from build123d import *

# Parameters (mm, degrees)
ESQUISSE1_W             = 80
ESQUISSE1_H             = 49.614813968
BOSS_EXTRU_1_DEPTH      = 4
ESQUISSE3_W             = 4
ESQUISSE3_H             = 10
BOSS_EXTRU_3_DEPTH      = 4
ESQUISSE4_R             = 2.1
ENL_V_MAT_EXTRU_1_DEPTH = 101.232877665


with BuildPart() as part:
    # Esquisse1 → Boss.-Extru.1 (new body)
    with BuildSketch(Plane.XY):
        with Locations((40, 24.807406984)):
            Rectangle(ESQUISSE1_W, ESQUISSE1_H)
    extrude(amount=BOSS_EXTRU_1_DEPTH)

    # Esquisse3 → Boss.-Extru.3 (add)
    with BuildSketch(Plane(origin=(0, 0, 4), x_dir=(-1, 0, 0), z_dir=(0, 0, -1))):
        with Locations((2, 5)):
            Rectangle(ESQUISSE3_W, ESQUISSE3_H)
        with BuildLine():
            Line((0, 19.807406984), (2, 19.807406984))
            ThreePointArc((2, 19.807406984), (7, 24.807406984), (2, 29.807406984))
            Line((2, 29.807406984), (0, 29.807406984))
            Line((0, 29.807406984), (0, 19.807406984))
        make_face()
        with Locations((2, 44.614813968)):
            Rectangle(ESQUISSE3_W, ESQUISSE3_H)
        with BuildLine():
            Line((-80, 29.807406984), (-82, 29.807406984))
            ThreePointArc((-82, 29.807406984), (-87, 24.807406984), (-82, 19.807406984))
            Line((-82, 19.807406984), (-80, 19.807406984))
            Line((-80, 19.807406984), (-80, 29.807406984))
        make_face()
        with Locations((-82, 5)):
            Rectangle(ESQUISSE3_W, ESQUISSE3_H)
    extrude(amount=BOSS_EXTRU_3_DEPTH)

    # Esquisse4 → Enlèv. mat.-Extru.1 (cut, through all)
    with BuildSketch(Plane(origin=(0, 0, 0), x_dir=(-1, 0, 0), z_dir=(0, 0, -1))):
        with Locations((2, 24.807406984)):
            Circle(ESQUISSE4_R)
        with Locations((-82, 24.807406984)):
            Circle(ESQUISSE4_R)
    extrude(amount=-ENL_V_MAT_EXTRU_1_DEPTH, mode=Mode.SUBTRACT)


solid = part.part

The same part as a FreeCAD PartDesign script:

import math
import FreeCAD as App
import Part
import Sketcher

V = App.Vector

doc = App.newDocument("Part")
params = doc.addObject("Spreadsheet::Sheet", "Params")
for row, (alias, value) in enumerate([
    ("sketch1_width", "80 mm"),
    ("pad1_length", "4 mm"),
    ("sketch2_radius", "5 mm"),
    ("sketch2_width", "4 mm"),
    ("sketch2_width2", "2 mm"),
    ("pad2_length", "4 mm"),
    ("sketch3_diameter", "4.2 mm"),
], start=1):
    params.set(f"A{row}", alias)
    params.set(f"B{row}", "=" + value)
    params.setAlias(f"B{row}", alias)

body = doc.addObject("PartDesign::Body", "Body")

sketch1 = body.newObject("Sketcher::SketchObject", "Sketch")
sketch1.AttachmentSupport = (doc.getObject("XY_Plane"), [""])
sketch1.MapMode = "FlatFace"
sketch1.addGeometry([
    Part.LineSegment(V(0, 49.614814, 0), V(0, 0, 0)),
    Part.LineSegment(V(0, 0, 0), V(80, 0, 0)),
    Part.LineSegment(V(80, 0, 0), V(80, 49.614814, 0)),
    Part.LineSegment(V(80, 49.614814, 0), V(0, 49.614814, 0)),
], False)
sketch1.addConstraint([
    Sketcher.Constraint("Coincident", 0, 2, 1, 1),
    Sketcher.Constraint("Coincident", 1, 2, 2, 1),
    Sketcher.Constraint("Coincident", 2, 2, 3, 1),
    Sketcher.Constraint("Coincident", 3, 2, 0, 1),
    Sketcher.Constraint("Vertical", 0),
    Sketcher.Constraint("Horizontal", 1),
    Sketcher.Constraint("Vertical", 2),
    Sketcher.Constraint("Horizontal", 3),
    Sketcher.Constraint("Coincident", 0, 2, -1, 1),
    Sketcher.Constraint("DistanceX", 1, 1, 1, 2, 80.0),
    Sketcher.Constraint("DistanceY", 0, 2, 0, 1, 49.614814),
])
sketch1.setExpression("Constraints[9]", "Params.sketch1_width")
pad1 = body.newObject("PartDesign::Pad", "Pad")
pad1.Profile = sketch1
pad1.setExpression("Length", "Params.pad1_length")

sketch2 = body.newObject("Sketcher::SketchObject", "Sketch001")
sketch2.AttachmentSupport = (doc.getObject("XY_Plane"), [""])
sketch2.MapMode = "FlatFace"
sketch2.AttachmentOffset = App.Placement(V(0, 0, 4), App.Rotation())
sketch2.addGeometry([
    Part.LineSegment(V(0, 10, 0), V(0, 0, 0)),
    Part.LineSegment(V(0, 0, 0), V(-4, 0, 0)),
    Part.LineSegment(V(-4, 0, 0), V(-4, 10, 0)),
    Part.LineSegment(V(-4, 10, 0), V(0, 10, 0)),
    Part.LineSegment(V(0, 19.807407, 0), V(-2, 19.807407, 0)),
    Part.ArcOfCircle(Part.Circle(V(-2, 24.807407, 0), V(0, 0, 1), 5), math.radians(90), math.radians(270)),
    Part.LineSegment(V(-2, 29.807407, 0), V(0, 29.807407, 0)),
    Part.LineSegment(V(0, 29.807407, 0), V(0, 19.807407, 0)),
    Part.LineSegment(V(0, 49.614814, 0), V(0, 39.614814, 0)),
    Part.LineSegment(V(0, 39.614814, 0), V(-4, 39.614814, 0)),
    Part.LineSegment(V(-4, 39.614814, 0), V(-4, 49.614814, 0)),
    Part.LineSegment(V(-4, 49.614814, 0), V(0, 49.614814, 0)),
    Part.LineSegment(V(80, 29.807407, 0), V(82, 29.807407, 0)),
    Part.ArcOfCircle(Part.Circle(V(82, 24.807407, 0), V(0, 0, 1), 5), math.radians(-90), math.radians(90)),
    Part.LineSegment(V(82, 19.807407, 0), V(80, 19.807407, 0)),
    Part.LineSegment(V(80, 19.807407, 0), V(80, 29.807407, 0)),
    Part.LineSegment(V(84, 10, 0), V(84, 0, 0)),
    Part.LineSegment(V(84, 0, 0), V(80, 0, 0)),
    Part.LineSegment(V(80, 0, 0), V(80, 10, 0)),
    Part.LineSegment(V(80, 10, 0), V(84, 10, 0)),
], False)
sketch2.addConstraint([
    Sketcher.Constraint("Coincident", 0, 2, 1, 1),
    Sketcher.Constraint("Coincident", 1, 2, 2, 1),
    Sketcher.Constraint("Coincident", 2, 2, 3, 1),
    Sketcher.Constraint("Coincident", 3, 2, 0, 1),
    Sketcher.Constraint("Tangent", 4, 2, 5, 2),
    Sketcher.Constraint("Tangent", 5, 1, 6, 1),
    Sketcher.Constraint("Coincident", 6, 2, 7, 1),
    Sketcher.Constraint("Coincident", 7, 2, 4, 1),
    Sketcher.Constraint("Coincident", 8, 2, 9, 1),
    Sketcher.Constraint("Coincident", 9, 2, 10, 1),
    Sketcher.Constraint("Coincident", 10, 2, 11, 1),
    Sketcher.Constraint("Coincident", 11, 2, 8, 1),
    Sketcher.Constraint("Tangent", 12, 2, 13, 2),
    Sketcher.Constraint("Tangent", 13, 1, 14, 1),
    Sketcher.Constraint("Coincident", 14, 2, 15, 1),
    Sketcher.Constraint("Coincident", 15, 2, 12, 1),
    Sketcher.Constraint("Coincident", 16, 2, 17, 1),
    Sketcher.Constraint("Coincident", 17, 2, 18, 1),
    Sketcher.Constraint("Coincident", 18, 2, 19, 1),
    Sketcher.Constraint("Coincident", 19, 2, 16, 1),
    Sketcher.Constraint("Vertical", 0),
    Sketcher.Constraint("Horizontal", 1),
    Sketcher.Constraint("Vertical", 2),
    Sketcher.Constraint("Horizontal", 3),
    Sketcher.Constraint("Horizontal", 4),
    Sketcher.Constraint("Horizontal", 6),
    Sketcher.Constraint("Vertical", 7),
    Sketcher.Constraint("Vertical", 8),
    Sketcher.Constraint("Horizontal", 9),
    Sketcher.Constraint("Vertical", 10),
    Sketcher.Constraint("Horizontal", 11),
    Sketcher.Constraint("Horizontal", 12),
    Sketcher.Constraint("Horizontal", 14),
    Sketcher.Constraint("Vertical", 15),
    Sketcher.Constraint("Vertical", 16),
    Sketcher.Constraint("Horizontal", 17),
    Sketcher.Constraint("Vertical", 18),
    Sketcher.Constraint("Horizontal", 19),
    Sketcher.Constraint("Coincident", 0, 2, -1, 1),
    Sketcher.Constraint("Equal", 5, 13),
    Sketcher.Constraint("PointOnObject", 6, 2, -2),
    Sketcher.Constraint("PointOnObject", 8, 2, -2),
    Sketcher.Constraint("PointOnObject", 16, 2, -1),
    Sketcher.Constraint("Horizontal", 5, 3, 13, 3),
    Sketcher.Constraint("Horizontal", 3, 2, 18, 2),
    Sketcher.Constraint("Vertical", 2, 2, 9, 2),
    Sketcher.Constraint("Vertical", 15, 2, 17, 2),
    Sketcher.Constraint("Equal", 6, 12),
    Sketcher.Constraint("Equal", 11, 17),
    Sketcher.Constraint("Equal", 2, 7),
    Sketcher.Constraint("Equal", 7, 8),
    Sketcher.Constraint("Radius", 5, 5.0),
    Sketcher.Constraint("DistanceX", 1, 2, 1, 1, 4.0),
    Sketcher.Constraint("DistanceX", 4, 2, 4, 1, 2.0),
    Sketcher.Constraint("DistanceX", -1, 1, 13, 3, 82.0),
    Sketcher.Constraint("DistanceY", -1, 1, 5, 3, 24.807407),
    Sketcher.Constraint("DistanceY", -1, 1, 8, 2, 39.614814),
])
sketch2.setExpression("Constraints[51]", "Params.sketch2_radius")
sketch2.setExpression("Constraints[52]", "Params.sketch2_width")
sketch2.setExpression("Constraints[53]", "Params.sketch2_width2")
pad2 = body.newObject("PartDesign::Pad", "Pad001")
pad2.Profile = sketch2
pad2.setExpression("Length", "Params.pad2_length")
pad2.Reversed = True

sketch3 = body.newObject("Sketcher::SketchObject", "Sketch002")
sketch3.AttachmentSupport = (doc.getObject("XY_Plane"), [""])
sketch3.MapMode = "FlatFace"
sketch3.addGeometry([
    Part.Circle(V(-2, 24.807407, 0), V(0, 0, 1), 2.1),
    Part.Circle(V(82, 24.807407, 0), V(0, 0, 1), 2.1),
], False)
sketch3.addConstraint([
    Sketcher.Constraint("Equal", 0, 1),
    Sketcher.Constraint("Horizontal", 0, 3, 1, 3),
    Sketcher.Constraint("Diameter", 0, 4.2),
    Sketcher.Constraint("DistanceX", 0, 3, -1, 1, 2.0),
    Sketcher.Constraint("DistanceX", -1, 1, 1, 3, 82.0),
    Sketcher.Constraint("DistanceY", -1, 1, 0, 3, 24.807407),
])
sketch3.setExpression("Constraints[2]", "Params.sketch3_diameter")
pocket1 = body.newObject("PartDesign::Pocket", "Pocket")
pocket1.Profile = sketch3
pocket1.Type = "ThroughAll"
pocket1.Reversed = True

doc.recompute()
